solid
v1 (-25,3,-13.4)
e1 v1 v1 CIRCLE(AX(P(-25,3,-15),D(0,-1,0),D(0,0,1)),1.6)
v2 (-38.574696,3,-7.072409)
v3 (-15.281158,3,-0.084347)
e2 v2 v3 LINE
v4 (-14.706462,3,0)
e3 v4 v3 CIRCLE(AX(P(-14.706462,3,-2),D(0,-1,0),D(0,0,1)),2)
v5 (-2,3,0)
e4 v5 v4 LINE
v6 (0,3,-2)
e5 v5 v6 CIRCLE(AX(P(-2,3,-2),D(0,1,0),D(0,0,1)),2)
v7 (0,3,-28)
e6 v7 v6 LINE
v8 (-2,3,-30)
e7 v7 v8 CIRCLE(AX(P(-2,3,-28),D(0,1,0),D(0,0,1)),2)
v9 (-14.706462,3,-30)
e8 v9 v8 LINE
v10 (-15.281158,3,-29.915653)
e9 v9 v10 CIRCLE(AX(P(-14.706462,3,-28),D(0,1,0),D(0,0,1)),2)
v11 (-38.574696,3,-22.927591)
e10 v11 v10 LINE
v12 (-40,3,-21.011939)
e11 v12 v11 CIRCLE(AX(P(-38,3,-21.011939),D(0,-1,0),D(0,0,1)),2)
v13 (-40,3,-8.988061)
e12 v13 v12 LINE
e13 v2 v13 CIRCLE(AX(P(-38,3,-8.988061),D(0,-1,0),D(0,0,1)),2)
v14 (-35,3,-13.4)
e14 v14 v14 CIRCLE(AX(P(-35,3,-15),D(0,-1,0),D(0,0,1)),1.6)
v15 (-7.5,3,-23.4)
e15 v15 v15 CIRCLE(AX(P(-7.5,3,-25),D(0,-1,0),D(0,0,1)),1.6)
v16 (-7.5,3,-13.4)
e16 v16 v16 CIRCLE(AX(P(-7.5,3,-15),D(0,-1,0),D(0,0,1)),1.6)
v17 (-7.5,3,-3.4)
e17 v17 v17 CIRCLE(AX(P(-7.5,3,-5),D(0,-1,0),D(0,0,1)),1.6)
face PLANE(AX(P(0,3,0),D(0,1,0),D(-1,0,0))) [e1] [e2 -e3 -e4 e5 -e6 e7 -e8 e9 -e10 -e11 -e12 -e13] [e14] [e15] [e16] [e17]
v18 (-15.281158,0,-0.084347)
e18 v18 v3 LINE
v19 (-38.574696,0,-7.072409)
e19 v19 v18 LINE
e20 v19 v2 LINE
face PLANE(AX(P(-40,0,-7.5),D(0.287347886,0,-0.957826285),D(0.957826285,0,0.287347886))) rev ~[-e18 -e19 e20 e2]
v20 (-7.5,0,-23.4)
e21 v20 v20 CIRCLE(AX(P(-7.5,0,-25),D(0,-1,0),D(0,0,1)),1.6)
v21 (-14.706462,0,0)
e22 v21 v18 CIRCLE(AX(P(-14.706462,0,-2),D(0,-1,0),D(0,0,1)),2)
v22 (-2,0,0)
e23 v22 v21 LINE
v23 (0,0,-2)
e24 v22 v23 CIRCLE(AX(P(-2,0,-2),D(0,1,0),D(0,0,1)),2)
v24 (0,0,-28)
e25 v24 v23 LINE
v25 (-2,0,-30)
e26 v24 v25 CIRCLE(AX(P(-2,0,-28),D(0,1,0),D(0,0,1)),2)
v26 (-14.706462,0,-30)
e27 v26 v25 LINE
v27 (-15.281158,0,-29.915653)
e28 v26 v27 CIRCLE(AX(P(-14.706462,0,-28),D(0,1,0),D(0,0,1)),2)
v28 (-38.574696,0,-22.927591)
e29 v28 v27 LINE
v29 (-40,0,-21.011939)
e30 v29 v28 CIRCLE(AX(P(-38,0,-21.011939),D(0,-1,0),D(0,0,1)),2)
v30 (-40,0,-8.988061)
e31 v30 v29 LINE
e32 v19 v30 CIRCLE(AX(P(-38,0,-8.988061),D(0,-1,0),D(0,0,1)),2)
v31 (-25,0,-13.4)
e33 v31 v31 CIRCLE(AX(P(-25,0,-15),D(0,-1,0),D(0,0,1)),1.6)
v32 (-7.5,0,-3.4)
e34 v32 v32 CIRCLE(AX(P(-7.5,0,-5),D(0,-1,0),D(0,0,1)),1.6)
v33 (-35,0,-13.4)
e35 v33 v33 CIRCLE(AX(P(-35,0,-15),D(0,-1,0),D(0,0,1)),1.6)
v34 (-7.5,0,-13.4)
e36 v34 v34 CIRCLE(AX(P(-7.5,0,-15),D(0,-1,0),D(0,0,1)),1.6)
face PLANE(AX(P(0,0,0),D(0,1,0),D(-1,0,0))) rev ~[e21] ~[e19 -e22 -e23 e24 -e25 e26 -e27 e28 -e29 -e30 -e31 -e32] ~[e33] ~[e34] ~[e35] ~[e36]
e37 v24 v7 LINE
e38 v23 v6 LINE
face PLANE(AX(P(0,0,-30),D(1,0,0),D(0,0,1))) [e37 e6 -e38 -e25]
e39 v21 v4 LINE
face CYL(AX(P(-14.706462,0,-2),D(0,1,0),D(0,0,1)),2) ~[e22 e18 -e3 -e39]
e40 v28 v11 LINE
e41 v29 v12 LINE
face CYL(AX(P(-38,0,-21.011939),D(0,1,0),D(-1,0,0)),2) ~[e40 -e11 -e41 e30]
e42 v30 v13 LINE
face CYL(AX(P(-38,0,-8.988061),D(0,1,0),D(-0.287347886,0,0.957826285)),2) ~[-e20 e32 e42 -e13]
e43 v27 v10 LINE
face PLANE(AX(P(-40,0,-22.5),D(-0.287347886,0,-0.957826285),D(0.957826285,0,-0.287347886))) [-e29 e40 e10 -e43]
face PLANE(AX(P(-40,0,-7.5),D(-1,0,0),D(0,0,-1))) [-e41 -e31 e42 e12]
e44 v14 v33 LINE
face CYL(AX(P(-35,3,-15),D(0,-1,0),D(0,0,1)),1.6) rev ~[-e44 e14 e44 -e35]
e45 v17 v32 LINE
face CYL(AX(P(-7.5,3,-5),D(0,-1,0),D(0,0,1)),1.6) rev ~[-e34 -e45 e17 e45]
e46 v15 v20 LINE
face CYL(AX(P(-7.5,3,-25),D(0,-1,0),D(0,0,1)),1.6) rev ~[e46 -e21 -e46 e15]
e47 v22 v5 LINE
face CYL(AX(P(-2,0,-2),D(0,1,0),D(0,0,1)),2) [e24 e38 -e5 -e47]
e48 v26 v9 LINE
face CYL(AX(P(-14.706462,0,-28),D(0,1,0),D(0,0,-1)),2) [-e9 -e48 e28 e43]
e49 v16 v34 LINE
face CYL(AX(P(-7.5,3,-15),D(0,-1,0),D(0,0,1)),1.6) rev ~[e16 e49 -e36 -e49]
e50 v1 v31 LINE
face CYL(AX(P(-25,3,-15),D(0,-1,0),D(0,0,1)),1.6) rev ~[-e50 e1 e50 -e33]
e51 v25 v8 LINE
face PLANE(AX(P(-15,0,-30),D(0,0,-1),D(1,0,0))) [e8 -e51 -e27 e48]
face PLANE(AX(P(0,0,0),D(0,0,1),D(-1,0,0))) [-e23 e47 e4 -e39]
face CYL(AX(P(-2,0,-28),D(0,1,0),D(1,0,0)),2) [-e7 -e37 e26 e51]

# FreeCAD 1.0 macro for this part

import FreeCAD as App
import Part
import Sketcher
from FreeCAD import Vector
Q = App.Units.Quantity


def edges_at(feature, points):
    """Names of the edges that pass closest to the given points."""
    edges = feature.Shape.Edges
    near = lambda p: min(range(len(edges)), key=lambda i: edges[i].distToShape(Part.Vertex(*p))[0])
    return sorted({f"Edge{near(p) + 1}" for p in points})


def add_polygon(sketch, points):
    """Adds a closed chain of lines whose ends are joined by coincident constraints."""
    first, n = sketch.GeometryCount, len(points)
    for a, b in zip(points, points[1:] + points[:1]):
        sketch.addGeometry(Part.LineSegment(App.Vector(*a, 0), App.Vector(*b, 0)), False)
    for i in range(n):
        sketch.addConstraint(Sketcher.Constraint("Coincident", first + i, 2, first + (i + 1) % n, 1))

doc = App.newDocument("Part")
body = doc.addObject("PartDesign::Body", "Body")

# Sketch on XZ plane
sketch1 = body.newObject("Sketcher::SketchObject", "Sketch")
sketch1.AttachmentSupport = (doc.getObject("XZ_Plane"), [""])
sketch1.MapMode = "FlatFace"
add_polygon(sketch1, [(-15, 0), (0, 0), (0, -30), (-15, -30), (-40, -22), (-40, -8)])  # lines 0-5
sketch1.addConstraint(Sketcher.Constraint("Horizontal", 0))
sketch1.addConstraint(Sketcher.Constraint("Vertical", 1))
sketch1.addConstraint(Sketcher.Constraint("Horizontal", 2))
sketch1.addConstraint(Sketcher.Constraint("Vertical", 4))
sketch1.addConstraint(Sketcher.Constraint("Coincident", 0, 2, -1, 1))
sketch1.addConstraint(Sketcher.Constraint("Vertical", 2, 2, 5, 2))
sketch1.addConstraint(Sketcher.Constraint("Equal", 2, 4))
sketch1.addConstraint(Sketcher.Constraint("Equal", 3, 5))
sketch1.addConstraint(Sketcher.Constraint("DistanceX", 0, 1, 0, 2, Q("15 mm")))
sketch1.addConstraint(Sketcher.Constraint("DistanceY", 1, 2, 1, 1, Q("30 mm")))
sketch1.addConstraint(Sketcher.Constraint("DistanceX", 3, 2, -1, 1, Q("40 mm")))
pad1 = body.newObject("PartDesign::Pad", "Pad")
pad1.Profile = sketch1
pad1.Length = 3
pad1.Reversed = True

# Sketch on XZ plane
sketch2 = body.newObject("Sketcher::SketchObject", "Sketch001")
sketch2.AttachmentSupport = (doc.getObject("XZ_Plane"), [""])
sketch2.MapMode = "FlatFace"
sketch2.AttachmentOffset = App.Placement(Vector(0, 0, -3), App.Rotation())
sketch2.addGeometry(Part.Circle(Vector(-35, -15, 0), Vector(0, 0, 1), 1.6), False)
sketch2.addGeometry(Part.Circle(Vector(-25, -15, 0), Vector(0, 0, 1), 1.6), False)
sketch2.addGeometry(Part.Circle(Vector(-7.5, -15, 0), Vector(0, 0, 1), 1.6), False)
sketch2.addGeometry(Part.Circle(Vector(-7.5, -5, 0), Vector(0, 0, 1), 1.6), False)
sketch2.addGeometry(Part.Circle(Vector(-7.5, -25, 0), Vector(0, 0, 1), 1.6), False)
sketch2.addConstraint(Sketcher.Constraint("Equal", 0, 1))
sketch2.addConstraint(Sketcher.Constraint("Equal", 1, 2))
sketch2.addConstraint(Sketcher.Constraint("Equal", 2, 3))
sketch2.addConstraint(Sketcher.Constraint("Equal", 3, 4))
sketch2.addConstraint(Sketcher.Constraint("Horizontal", 0, 3, 1, 3))
sketch2.addConstraint(Sketcher.Constraint("Horizontal", 1, 3, 2, 3))
sketch2.addConstraint(Sketcher.Constraint("Vertical", 2, 3, 3, 3))
sketch2.addConstraint(Sketcher.Constraint("Vertical", 3, 3, 4, 3))
sketch2.addConstraint(Sketcher.Constraint("Diameter", 0, Q("3.2 mm")))
sketch2.addConstraint(Sketcher.Constraint("DistanceX", 0, 3, -1, 1, Q("35 mm")))
sketch2.addConstraint(Sketcher.Constraint("DistanceY", 0, 3, -1, 1, Q("15 mm")))
sketch2.addConstraint(Sketcher.Constraint("DistanceX", 1, 3, -1, 1, Q("25 mm")))
sketch2.addConstraint(Sketcher.Constraint("DistanceY", 3, 3, -1, 1, Q("5 mm")))
sketch2.addConstraint(Sketcher.Constraint("DistanceY", 4, 3, -1, 1, Q("25 mm")))
sketch2.addConstraint(Sketcher.Constraint("DistanceX", 2, 3, -1, 1, Q("7.5 mm")))
doc.recompute()
hole = body.newObject("PartDesign::Hole", "Hole")
hole.Profile = sketch2
hole.ThreadType = "None"
hole.Diameter = 3.2
hole.DepthType = "ThroughAll"
hole.Reversed = True
doc.recompute()

fillet = body.newObject("PartDesign::Fillet", "Fillet")
fillet.Base = (hole, edges_at(hole, [
    (-15, 1.5, 0),
    (0, 1.5, 0),
    (0, 1.5, -30),
    (-40, 1.5, -7.5),
    (-40, 1.5, -22.5),
    (-15, 1.5, -30),
]))
fillet.Radius = 2

doc.recompute()
